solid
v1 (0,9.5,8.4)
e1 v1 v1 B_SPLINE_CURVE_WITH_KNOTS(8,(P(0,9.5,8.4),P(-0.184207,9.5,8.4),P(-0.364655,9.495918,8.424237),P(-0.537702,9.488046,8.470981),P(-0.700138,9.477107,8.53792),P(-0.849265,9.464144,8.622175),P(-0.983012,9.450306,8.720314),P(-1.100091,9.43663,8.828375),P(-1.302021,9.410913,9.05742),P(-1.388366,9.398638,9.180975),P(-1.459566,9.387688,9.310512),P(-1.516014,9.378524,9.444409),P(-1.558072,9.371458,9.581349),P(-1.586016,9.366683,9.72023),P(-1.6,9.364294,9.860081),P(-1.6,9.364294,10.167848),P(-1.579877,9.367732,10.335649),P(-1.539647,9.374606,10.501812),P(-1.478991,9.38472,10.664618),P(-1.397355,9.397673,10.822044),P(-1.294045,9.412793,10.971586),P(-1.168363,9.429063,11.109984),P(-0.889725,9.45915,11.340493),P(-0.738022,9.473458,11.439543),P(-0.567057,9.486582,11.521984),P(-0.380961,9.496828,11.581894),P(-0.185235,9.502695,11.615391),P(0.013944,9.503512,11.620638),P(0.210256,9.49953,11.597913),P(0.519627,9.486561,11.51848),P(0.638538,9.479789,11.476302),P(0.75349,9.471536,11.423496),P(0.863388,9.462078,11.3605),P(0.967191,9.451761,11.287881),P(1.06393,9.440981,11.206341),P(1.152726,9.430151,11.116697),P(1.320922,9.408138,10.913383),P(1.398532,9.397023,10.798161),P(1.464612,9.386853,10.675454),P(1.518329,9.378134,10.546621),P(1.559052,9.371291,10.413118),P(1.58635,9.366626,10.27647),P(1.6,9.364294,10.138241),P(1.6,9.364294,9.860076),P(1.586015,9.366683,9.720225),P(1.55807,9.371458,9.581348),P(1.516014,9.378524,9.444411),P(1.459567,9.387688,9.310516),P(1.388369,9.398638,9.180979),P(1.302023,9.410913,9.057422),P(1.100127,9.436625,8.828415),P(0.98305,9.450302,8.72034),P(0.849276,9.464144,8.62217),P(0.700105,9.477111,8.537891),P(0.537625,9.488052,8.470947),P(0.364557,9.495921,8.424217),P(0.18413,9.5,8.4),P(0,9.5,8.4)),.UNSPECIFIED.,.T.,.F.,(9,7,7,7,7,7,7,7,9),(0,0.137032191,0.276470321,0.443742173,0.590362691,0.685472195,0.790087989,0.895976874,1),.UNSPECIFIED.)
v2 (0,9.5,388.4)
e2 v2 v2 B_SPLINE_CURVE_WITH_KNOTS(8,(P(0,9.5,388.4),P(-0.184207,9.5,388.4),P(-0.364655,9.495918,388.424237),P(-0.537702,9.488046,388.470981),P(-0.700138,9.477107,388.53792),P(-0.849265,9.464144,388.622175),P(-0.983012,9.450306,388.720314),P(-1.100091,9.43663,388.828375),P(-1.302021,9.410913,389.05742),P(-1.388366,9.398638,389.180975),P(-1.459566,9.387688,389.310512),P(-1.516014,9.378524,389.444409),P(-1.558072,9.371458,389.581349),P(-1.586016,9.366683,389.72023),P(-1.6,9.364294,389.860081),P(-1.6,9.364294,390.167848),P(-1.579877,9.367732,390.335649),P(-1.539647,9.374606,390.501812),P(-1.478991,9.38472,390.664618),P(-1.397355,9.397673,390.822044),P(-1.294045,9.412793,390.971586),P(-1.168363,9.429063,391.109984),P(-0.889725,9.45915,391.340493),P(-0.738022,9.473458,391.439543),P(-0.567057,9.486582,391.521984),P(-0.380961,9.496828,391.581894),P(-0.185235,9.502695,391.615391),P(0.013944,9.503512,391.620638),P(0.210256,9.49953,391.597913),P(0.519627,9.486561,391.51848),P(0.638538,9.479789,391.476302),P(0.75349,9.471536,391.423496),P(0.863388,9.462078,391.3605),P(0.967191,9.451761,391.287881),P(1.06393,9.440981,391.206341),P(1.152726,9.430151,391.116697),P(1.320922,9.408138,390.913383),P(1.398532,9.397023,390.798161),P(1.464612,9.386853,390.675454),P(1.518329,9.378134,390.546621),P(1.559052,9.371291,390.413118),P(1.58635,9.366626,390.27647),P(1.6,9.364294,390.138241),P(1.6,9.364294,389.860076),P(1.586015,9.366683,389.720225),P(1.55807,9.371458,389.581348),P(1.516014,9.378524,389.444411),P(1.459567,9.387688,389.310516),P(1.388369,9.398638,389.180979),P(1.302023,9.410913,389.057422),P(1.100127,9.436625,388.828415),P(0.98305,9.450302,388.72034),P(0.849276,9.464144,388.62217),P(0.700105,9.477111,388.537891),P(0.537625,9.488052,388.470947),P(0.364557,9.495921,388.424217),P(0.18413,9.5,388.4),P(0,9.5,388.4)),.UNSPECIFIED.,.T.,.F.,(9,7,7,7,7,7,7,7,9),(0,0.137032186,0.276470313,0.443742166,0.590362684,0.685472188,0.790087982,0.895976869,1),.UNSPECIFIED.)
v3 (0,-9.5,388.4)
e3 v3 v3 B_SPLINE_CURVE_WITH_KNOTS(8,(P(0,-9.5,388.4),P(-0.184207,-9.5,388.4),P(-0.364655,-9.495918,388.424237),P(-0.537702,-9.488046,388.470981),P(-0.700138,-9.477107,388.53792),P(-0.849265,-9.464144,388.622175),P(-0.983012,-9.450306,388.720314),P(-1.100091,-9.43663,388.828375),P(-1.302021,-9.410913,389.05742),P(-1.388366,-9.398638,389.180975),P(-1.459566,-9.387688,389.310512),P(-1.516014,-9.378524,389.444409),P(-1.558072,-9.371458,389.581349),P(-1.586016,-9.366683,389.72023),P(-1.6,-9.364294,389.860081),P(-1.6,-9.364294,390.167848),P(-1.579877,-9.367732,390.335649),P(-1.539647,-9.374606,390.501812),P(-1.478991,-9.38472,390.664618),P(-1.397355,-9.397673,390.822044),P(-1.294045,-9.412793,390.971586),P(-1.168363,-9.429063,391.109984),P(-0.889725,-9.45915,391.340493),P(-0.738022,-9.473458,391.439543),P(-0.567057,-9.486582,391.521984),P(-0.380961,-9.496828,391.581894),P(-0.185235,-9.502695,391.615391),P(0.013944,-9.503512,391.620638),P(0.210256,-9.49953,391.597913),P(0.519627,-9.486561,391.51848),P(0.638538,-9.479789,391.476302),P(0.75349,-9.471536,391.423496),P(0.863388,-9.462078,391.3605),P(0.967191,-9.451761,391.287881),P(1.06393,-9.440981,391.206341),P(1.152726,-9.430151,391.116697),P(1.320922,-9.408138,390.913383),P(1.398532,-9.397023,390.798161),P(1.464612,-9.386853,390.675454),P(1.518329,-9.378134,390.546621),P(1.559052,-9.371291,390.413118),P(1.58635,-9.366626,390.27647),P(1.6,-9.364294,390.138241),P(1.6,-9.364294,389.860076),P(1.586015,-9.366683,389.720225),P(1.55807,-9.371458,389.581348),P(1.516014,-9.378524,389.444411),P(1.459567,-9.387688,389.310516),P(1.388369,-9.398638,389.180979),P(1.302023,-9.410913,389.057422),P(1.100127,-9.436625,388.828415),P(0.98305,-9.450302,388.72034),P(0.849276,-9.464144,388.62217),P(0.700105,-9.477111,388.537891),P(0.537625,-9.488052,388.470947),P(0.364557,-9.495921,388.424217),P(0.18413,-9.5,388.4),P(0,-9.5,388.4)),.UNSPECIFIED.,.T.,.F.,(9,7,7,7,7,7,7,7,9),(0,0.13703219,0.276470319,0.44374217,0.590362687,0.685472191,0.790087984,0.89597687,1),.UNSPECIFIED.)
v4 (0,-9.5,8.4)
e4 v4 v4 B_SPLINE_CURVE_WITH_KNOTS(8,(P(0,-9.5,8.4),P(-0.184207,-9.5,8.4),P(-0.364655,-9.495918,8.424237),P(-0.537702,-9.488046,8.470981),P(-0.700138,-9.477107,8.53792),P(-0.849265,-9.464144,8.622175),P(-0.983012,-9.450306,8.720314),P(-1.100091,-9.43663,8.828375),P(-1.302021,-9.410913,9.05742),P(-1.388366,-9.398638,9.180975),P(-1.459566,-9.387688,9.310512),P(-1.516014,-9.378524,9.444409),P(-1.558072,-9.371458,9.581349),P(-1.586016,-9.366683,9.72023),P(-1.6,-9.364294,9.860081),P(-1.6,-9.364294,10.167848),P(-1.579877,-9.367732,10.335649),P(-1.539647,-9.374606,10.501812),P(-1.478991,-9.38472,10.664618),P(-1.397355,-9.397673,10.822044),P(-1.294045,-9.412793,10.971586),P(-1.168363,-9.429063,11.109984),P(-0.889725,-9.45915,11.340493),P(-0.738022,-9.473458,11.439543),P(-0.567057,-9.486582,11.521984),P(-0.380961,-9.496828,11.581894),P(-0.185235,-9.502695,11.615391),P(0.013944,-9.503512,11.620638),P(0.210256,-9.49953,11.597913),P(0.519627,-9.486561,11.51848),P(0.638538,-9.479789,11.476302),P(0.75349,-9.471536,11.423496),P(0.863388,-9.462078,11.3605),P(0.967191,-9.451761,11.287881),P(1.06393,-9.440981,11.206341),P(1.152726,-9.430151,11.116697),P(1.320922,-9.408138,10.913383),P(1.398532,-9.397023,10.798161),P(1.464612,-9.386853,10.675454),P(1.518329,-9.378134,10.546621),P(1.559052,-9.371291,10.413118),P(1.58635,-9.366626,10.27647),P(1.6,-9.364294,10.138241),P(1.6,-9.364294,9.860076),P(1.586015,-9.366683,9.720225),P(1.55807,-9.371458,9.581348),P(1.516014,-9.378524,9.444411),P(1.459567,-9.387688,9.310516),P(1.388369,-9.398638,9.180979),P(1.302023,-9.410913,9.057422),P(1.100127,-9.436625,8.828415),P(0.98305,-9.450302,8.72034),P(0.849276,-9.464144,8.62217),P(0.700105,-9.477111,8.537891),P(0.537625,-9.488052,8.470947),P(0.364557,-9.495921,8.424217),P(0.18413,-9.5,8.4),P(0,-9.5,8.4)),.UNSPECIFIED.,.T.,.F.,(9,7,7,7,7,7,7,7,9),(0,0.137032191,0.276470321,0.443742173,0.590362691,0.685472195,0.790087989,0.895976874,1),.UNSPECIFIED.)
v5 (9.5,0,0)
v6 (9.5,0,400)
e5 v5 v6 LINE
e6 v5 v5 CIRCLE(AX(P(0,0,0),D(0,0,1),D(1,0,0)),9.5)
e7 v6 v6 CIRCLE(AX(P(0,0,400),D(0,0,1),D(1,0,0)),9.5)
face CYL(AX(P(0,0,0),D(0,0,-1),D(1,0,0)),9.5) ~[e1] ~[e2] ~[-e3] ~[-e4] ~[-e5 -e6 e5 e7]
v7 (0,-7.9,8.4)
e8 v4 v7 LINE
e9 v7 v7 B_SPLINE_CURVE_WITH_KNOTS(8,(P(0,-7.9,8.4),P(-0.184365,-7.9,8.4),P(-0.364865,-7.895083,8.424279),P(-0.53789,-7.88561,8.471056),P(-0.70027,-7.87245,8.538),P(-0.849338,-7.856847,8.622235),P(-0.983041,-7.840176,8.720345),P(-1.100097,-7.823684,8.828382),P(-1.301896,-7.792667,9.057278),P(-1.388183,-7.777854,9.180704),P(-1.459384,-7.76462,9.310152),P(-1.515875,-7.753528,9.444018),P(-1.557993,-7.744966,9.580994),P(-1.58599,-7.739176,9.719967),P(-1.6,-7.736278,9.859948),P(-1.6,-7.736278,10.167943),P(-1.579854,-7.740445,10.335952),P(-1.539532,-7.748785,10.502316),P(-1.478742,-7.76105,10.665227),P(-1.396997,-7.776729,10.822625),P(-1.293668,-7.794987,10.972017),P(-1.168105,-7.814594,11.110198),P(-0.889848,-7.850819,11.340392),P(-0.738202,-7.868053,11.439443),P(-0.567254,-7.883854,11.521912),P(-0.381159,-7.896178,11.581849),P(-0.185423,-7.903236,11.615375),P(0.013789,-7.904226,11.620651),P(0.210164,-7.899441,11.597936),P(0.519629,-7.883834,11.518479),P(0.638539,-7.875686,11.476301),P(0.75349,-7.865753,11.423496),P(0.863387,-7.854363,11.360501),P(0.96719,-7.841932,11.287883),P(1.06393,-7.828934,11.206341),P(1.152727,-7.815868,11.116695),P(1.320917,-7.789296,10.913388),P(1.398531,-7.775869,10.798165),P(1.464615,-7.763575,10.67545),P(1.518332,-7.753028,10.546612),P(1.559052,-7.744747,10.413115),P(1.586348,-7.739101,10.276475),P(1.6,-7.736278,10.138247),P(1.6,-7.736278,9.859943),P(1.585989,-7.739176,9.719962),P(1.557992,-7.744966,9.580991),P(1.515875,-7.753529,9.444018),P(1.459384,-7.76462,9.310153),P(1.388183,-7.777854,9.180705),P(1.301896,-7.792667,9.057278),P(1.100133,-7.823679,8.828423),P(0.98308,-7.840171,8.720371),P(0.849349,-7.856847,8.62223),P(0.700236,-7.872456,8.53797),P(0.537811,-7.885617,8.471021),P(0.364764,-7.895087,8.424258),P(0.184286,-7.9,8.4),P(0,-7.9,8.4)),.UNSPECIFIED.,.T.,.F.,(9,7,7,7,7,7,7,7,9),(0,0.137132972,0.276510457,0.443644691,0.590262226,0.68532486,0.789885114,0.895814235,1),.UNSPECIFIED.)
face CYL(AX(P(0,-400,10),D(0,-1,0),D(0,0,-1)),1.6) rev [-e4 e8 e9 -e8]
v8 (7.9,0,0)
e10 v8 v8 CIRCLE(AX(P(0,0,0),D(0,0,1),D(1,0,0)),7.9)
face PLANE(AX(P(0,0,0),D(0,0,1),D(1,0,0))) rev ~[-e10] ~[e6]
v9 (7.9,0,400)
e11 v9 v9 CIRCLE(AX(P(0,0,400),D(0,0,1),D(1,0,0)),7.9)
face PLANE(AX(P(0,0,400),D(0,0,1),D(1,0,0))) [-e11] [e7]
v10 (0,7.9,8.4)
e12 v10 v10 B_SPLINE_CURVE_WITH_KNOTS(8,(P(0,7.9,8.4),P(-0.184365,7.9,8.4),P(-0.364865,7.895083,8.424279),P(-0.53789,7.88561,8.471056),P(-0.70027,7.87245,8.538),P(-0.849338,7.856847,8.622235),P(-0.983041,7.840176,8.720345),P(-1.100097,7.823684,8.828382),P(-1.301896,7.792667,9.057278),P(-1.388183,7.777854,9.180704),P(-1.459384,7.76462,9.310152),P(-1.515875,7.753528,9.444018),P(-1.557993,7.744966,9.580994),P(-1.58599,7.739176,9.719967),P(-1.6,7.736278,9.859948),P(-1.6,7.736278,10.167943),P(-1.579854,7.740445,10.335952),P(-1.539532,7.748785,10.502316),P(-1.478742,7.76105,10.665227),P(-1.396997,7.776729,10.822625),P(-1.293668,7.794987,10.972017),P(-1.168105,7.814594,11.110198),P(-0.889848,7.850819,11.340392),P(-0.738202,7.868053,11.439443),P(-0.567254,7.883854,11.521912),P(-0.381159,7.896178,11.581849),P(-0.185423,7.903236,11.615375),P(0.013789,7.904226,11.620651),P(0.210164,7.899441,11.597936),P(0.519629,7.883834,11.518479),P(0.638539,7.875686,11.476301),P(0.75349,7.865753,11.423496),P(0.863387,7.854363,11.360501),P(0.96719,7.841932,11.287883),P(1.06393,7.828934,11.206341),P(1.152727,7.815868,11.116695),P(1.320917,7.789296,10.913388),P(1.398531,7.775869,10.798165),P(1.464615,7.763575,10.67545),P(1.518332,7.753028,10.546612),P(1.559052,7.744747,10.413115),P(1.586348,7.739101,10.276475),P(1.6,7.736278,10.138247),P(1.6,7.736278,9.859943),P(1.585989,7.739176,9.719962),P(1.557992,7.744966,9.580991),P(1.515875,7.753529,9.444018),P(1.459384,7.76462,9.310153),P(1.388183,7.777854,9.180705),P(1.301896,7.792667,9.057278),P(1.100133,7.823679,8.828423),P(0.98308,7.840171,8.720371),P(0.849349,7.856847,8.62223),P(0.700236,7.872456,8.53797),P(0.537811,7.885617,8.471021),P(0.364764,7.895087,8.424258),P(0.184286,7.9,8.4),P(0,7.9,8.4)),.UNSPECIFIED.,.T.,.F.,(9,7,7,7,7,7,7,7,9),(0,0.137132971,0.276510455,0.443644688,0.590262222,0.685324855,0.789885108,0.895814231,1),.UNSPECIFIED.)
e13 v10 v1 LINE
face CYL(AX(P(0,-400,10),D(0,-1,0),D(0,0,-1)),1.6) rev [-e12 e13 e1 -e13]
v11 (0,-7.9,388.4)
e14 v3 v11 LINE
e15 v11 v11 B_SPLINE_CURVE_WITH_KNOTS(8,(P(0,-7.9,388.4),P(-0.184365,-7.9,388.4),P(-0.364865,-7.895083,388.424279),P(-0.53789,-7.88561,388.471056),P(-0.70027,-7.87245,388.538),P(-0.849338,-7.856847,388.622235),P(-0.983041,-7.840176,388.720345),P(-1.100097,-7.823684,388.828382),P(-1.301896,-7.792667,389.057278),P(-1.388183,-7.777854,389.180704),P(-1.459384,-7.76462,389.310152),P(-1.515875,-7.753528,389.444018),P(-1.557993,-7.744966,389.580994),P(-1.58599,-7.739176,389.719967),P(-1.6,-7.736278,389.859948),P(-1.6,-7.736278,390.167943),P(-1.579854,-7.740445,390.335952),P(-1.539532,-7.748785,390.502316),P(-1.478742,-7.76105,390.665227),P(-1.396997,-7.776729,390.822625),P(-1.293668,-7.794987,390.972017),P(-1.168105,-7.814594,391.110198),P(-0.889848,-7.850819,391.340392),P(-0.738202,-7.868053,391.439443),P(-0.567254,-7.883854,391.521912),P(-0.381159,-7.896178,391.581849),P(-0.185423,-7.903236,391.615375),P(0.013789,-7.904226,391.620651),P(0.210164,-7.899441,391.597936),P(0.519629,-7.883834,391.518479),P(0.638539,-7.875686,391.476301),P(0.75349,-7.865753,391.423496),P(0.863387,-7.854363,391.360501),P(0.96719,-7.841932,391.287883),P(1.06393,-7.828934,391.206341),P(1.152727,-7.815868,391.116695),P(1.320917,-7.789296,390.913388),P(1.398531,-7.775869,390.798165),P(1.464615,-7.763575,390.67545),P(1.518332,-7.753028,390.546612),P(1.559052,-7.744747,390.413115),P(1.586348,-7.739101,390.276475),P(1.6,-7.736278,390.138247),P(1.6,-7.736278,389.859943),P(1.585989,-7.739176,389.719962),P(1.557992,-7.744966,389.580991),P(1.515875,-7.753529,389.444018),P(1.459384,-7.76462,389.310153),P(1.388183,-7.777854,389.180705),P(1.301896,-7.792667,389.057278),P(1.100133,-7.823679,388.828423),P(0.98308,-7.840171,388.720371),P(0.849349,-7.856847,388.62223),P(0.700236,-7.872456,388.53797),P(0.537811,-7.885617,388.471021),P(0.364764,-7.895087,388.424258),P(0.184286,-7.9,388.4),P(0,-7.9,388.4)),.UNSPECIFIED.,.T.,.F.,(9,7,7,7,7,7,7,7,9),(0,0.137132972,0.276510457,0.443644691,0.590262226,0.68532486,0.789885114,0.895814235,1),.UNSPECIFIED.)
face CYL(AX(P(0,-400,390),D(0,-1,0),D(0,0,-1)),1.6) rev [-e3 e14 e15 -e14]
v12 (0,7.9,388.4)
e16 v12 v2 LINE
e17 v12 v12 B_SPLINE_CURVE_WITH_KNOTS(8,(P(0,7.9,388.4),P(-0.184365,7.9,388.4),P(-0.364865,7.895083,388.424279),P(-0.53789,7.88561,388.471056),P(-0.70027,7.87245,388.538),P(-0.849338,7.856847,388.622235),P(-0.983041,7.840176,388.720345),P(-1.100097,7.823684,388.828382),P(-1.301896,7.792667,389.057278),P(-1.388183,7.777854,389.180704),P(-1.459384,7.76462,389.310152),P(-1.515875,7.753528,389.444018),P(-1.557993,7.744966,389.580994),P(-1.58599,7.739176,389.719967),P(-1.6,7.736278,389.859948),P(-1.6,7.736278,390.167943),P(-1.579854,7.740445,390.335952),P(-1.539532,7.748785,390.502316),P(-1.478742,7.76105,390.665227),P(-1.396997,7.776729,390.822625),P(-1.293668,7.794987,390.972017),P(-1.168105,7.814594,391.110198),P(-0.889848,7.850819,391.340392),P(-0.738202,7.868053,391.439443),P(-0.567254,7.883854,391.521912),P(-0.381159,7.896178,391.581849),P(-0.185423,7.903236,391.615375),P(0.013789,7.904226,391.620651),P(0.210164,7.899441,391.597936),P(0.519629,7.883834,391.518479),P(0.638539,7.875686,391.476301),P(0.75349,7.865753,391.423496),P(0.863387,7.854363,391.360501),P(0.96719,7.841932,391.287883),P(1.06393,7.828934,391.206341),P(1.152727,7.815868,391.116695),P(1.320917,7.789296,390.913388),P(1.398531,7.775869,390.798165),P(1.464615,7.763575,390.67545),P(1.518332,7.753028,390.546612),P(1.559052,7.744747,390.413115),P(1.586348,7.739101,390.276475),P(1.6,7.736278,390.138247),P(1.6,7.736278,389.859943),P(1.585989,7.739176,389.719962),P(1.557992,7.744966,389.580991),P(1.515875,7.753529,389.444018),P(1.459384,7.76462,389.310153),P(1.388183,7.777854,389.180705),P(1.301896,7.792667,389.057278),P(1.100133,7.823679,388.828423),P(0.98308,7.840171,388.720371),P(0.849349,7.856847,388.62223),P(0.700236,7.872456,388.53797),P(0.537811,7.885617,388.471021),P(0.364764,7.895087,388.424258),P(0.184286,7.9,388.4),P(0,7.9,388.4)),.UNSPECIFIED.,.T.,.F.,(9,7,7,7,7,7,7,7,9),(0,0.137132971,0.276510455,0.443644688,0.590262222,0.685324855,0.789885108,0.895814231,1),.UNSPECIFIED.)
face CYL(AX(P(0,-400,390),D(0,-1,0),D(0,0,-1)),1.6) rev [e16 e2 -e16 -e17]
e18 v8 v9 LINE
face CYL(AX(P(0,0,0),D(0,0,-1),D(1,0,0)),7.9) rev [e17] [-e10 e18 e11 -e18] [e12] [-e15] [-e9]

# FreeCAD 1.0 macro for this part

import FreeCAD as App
import Part
import Sketcher
from FreeCAD import Vector
Q = App.Units.Quantity

doc = App.newDocument("Part")
body = doc.addObject("PartDesign::Body", "Body")

# Sketch on XY plane
sketch1 = body.newObject("Sketcher::SketchObject", "Sketch")
sketch1.AttachmentSupport = (doc.getObject("XY_Plane"), [""])
sketch1.MapMode = "FlatFace"
sketch1.addGeometry(Part.Circle(Vector(0, 0, 0), Vector(0, 0, 1), 10), False)
sketch1.addGeometry(Part.Circle(Vector(0, 0, 0), Vector(0, 0, 1), 8), False)
sketch1.addConstraint(Sketcher.Constraint("Coincident", 0, 3, -1, 1))
sketch1.addConstraint(Sketcher.Constraint("Coincident", 1, 3, -1, 1))
sketch1.addConstraint(Sketcher.Constraint("Diameter", 0, Q("19 mm")))
sketch1.addConstraint(Sketcher.Constraint("Diameter", 1, Q("15.8 mm")))
pad1 = body.newObject("PartDesign::Pad", "Pad")
pad1.Profile = sketch1
pad1.Length = 400

# Sketch on XZ plane
sketch2 = body.newObject("Sketcher::SketchObject", "Sketch001")
sketch2.AttachmentSupport = (doc.getObject("XZ_Plane"), [""])
sketch2.MapMode = "FlatFace"
sketch2.addGeometry(Part.Circle(Vector(0, 10, 0), Vector(0, 0, 1), 1.6), False)
sketch2.addGeometry(Part.Circle(Vector(0, 390, 0), Vector(0, 0, 1), 1.6), False)
sketch2.addConstraint(Sketcher.Constraint("Equal", 0, 1))
sketch2.addConstraint(Sketcher.Constraint("PointOnObject", 0, 3, -2))
sketch2.addConstraint(Sketcher.Constraint("PointOnObject", 1, 3, -2))
sketch2.addConstraint(Sketcher.Constraint("Diameter", 0, Q("3.2 mm")))
sketch2.addConstraint(Sketcher.Constraint("DistanceY", -1, 1, 0, 3, Q("10 mm")))
sketch2.addConstraint(Sketcher.Constraint("DistanceY", -1, 1, 1, 3, Q("390 mm")))
pocket1 = body.newObject("PartDesign::Pocket", "Pocket")
pocket1.Profile = sketch2
pocket1.Type = "ThroughAll"
pocket1.Midplane = True

doc.recompute()
